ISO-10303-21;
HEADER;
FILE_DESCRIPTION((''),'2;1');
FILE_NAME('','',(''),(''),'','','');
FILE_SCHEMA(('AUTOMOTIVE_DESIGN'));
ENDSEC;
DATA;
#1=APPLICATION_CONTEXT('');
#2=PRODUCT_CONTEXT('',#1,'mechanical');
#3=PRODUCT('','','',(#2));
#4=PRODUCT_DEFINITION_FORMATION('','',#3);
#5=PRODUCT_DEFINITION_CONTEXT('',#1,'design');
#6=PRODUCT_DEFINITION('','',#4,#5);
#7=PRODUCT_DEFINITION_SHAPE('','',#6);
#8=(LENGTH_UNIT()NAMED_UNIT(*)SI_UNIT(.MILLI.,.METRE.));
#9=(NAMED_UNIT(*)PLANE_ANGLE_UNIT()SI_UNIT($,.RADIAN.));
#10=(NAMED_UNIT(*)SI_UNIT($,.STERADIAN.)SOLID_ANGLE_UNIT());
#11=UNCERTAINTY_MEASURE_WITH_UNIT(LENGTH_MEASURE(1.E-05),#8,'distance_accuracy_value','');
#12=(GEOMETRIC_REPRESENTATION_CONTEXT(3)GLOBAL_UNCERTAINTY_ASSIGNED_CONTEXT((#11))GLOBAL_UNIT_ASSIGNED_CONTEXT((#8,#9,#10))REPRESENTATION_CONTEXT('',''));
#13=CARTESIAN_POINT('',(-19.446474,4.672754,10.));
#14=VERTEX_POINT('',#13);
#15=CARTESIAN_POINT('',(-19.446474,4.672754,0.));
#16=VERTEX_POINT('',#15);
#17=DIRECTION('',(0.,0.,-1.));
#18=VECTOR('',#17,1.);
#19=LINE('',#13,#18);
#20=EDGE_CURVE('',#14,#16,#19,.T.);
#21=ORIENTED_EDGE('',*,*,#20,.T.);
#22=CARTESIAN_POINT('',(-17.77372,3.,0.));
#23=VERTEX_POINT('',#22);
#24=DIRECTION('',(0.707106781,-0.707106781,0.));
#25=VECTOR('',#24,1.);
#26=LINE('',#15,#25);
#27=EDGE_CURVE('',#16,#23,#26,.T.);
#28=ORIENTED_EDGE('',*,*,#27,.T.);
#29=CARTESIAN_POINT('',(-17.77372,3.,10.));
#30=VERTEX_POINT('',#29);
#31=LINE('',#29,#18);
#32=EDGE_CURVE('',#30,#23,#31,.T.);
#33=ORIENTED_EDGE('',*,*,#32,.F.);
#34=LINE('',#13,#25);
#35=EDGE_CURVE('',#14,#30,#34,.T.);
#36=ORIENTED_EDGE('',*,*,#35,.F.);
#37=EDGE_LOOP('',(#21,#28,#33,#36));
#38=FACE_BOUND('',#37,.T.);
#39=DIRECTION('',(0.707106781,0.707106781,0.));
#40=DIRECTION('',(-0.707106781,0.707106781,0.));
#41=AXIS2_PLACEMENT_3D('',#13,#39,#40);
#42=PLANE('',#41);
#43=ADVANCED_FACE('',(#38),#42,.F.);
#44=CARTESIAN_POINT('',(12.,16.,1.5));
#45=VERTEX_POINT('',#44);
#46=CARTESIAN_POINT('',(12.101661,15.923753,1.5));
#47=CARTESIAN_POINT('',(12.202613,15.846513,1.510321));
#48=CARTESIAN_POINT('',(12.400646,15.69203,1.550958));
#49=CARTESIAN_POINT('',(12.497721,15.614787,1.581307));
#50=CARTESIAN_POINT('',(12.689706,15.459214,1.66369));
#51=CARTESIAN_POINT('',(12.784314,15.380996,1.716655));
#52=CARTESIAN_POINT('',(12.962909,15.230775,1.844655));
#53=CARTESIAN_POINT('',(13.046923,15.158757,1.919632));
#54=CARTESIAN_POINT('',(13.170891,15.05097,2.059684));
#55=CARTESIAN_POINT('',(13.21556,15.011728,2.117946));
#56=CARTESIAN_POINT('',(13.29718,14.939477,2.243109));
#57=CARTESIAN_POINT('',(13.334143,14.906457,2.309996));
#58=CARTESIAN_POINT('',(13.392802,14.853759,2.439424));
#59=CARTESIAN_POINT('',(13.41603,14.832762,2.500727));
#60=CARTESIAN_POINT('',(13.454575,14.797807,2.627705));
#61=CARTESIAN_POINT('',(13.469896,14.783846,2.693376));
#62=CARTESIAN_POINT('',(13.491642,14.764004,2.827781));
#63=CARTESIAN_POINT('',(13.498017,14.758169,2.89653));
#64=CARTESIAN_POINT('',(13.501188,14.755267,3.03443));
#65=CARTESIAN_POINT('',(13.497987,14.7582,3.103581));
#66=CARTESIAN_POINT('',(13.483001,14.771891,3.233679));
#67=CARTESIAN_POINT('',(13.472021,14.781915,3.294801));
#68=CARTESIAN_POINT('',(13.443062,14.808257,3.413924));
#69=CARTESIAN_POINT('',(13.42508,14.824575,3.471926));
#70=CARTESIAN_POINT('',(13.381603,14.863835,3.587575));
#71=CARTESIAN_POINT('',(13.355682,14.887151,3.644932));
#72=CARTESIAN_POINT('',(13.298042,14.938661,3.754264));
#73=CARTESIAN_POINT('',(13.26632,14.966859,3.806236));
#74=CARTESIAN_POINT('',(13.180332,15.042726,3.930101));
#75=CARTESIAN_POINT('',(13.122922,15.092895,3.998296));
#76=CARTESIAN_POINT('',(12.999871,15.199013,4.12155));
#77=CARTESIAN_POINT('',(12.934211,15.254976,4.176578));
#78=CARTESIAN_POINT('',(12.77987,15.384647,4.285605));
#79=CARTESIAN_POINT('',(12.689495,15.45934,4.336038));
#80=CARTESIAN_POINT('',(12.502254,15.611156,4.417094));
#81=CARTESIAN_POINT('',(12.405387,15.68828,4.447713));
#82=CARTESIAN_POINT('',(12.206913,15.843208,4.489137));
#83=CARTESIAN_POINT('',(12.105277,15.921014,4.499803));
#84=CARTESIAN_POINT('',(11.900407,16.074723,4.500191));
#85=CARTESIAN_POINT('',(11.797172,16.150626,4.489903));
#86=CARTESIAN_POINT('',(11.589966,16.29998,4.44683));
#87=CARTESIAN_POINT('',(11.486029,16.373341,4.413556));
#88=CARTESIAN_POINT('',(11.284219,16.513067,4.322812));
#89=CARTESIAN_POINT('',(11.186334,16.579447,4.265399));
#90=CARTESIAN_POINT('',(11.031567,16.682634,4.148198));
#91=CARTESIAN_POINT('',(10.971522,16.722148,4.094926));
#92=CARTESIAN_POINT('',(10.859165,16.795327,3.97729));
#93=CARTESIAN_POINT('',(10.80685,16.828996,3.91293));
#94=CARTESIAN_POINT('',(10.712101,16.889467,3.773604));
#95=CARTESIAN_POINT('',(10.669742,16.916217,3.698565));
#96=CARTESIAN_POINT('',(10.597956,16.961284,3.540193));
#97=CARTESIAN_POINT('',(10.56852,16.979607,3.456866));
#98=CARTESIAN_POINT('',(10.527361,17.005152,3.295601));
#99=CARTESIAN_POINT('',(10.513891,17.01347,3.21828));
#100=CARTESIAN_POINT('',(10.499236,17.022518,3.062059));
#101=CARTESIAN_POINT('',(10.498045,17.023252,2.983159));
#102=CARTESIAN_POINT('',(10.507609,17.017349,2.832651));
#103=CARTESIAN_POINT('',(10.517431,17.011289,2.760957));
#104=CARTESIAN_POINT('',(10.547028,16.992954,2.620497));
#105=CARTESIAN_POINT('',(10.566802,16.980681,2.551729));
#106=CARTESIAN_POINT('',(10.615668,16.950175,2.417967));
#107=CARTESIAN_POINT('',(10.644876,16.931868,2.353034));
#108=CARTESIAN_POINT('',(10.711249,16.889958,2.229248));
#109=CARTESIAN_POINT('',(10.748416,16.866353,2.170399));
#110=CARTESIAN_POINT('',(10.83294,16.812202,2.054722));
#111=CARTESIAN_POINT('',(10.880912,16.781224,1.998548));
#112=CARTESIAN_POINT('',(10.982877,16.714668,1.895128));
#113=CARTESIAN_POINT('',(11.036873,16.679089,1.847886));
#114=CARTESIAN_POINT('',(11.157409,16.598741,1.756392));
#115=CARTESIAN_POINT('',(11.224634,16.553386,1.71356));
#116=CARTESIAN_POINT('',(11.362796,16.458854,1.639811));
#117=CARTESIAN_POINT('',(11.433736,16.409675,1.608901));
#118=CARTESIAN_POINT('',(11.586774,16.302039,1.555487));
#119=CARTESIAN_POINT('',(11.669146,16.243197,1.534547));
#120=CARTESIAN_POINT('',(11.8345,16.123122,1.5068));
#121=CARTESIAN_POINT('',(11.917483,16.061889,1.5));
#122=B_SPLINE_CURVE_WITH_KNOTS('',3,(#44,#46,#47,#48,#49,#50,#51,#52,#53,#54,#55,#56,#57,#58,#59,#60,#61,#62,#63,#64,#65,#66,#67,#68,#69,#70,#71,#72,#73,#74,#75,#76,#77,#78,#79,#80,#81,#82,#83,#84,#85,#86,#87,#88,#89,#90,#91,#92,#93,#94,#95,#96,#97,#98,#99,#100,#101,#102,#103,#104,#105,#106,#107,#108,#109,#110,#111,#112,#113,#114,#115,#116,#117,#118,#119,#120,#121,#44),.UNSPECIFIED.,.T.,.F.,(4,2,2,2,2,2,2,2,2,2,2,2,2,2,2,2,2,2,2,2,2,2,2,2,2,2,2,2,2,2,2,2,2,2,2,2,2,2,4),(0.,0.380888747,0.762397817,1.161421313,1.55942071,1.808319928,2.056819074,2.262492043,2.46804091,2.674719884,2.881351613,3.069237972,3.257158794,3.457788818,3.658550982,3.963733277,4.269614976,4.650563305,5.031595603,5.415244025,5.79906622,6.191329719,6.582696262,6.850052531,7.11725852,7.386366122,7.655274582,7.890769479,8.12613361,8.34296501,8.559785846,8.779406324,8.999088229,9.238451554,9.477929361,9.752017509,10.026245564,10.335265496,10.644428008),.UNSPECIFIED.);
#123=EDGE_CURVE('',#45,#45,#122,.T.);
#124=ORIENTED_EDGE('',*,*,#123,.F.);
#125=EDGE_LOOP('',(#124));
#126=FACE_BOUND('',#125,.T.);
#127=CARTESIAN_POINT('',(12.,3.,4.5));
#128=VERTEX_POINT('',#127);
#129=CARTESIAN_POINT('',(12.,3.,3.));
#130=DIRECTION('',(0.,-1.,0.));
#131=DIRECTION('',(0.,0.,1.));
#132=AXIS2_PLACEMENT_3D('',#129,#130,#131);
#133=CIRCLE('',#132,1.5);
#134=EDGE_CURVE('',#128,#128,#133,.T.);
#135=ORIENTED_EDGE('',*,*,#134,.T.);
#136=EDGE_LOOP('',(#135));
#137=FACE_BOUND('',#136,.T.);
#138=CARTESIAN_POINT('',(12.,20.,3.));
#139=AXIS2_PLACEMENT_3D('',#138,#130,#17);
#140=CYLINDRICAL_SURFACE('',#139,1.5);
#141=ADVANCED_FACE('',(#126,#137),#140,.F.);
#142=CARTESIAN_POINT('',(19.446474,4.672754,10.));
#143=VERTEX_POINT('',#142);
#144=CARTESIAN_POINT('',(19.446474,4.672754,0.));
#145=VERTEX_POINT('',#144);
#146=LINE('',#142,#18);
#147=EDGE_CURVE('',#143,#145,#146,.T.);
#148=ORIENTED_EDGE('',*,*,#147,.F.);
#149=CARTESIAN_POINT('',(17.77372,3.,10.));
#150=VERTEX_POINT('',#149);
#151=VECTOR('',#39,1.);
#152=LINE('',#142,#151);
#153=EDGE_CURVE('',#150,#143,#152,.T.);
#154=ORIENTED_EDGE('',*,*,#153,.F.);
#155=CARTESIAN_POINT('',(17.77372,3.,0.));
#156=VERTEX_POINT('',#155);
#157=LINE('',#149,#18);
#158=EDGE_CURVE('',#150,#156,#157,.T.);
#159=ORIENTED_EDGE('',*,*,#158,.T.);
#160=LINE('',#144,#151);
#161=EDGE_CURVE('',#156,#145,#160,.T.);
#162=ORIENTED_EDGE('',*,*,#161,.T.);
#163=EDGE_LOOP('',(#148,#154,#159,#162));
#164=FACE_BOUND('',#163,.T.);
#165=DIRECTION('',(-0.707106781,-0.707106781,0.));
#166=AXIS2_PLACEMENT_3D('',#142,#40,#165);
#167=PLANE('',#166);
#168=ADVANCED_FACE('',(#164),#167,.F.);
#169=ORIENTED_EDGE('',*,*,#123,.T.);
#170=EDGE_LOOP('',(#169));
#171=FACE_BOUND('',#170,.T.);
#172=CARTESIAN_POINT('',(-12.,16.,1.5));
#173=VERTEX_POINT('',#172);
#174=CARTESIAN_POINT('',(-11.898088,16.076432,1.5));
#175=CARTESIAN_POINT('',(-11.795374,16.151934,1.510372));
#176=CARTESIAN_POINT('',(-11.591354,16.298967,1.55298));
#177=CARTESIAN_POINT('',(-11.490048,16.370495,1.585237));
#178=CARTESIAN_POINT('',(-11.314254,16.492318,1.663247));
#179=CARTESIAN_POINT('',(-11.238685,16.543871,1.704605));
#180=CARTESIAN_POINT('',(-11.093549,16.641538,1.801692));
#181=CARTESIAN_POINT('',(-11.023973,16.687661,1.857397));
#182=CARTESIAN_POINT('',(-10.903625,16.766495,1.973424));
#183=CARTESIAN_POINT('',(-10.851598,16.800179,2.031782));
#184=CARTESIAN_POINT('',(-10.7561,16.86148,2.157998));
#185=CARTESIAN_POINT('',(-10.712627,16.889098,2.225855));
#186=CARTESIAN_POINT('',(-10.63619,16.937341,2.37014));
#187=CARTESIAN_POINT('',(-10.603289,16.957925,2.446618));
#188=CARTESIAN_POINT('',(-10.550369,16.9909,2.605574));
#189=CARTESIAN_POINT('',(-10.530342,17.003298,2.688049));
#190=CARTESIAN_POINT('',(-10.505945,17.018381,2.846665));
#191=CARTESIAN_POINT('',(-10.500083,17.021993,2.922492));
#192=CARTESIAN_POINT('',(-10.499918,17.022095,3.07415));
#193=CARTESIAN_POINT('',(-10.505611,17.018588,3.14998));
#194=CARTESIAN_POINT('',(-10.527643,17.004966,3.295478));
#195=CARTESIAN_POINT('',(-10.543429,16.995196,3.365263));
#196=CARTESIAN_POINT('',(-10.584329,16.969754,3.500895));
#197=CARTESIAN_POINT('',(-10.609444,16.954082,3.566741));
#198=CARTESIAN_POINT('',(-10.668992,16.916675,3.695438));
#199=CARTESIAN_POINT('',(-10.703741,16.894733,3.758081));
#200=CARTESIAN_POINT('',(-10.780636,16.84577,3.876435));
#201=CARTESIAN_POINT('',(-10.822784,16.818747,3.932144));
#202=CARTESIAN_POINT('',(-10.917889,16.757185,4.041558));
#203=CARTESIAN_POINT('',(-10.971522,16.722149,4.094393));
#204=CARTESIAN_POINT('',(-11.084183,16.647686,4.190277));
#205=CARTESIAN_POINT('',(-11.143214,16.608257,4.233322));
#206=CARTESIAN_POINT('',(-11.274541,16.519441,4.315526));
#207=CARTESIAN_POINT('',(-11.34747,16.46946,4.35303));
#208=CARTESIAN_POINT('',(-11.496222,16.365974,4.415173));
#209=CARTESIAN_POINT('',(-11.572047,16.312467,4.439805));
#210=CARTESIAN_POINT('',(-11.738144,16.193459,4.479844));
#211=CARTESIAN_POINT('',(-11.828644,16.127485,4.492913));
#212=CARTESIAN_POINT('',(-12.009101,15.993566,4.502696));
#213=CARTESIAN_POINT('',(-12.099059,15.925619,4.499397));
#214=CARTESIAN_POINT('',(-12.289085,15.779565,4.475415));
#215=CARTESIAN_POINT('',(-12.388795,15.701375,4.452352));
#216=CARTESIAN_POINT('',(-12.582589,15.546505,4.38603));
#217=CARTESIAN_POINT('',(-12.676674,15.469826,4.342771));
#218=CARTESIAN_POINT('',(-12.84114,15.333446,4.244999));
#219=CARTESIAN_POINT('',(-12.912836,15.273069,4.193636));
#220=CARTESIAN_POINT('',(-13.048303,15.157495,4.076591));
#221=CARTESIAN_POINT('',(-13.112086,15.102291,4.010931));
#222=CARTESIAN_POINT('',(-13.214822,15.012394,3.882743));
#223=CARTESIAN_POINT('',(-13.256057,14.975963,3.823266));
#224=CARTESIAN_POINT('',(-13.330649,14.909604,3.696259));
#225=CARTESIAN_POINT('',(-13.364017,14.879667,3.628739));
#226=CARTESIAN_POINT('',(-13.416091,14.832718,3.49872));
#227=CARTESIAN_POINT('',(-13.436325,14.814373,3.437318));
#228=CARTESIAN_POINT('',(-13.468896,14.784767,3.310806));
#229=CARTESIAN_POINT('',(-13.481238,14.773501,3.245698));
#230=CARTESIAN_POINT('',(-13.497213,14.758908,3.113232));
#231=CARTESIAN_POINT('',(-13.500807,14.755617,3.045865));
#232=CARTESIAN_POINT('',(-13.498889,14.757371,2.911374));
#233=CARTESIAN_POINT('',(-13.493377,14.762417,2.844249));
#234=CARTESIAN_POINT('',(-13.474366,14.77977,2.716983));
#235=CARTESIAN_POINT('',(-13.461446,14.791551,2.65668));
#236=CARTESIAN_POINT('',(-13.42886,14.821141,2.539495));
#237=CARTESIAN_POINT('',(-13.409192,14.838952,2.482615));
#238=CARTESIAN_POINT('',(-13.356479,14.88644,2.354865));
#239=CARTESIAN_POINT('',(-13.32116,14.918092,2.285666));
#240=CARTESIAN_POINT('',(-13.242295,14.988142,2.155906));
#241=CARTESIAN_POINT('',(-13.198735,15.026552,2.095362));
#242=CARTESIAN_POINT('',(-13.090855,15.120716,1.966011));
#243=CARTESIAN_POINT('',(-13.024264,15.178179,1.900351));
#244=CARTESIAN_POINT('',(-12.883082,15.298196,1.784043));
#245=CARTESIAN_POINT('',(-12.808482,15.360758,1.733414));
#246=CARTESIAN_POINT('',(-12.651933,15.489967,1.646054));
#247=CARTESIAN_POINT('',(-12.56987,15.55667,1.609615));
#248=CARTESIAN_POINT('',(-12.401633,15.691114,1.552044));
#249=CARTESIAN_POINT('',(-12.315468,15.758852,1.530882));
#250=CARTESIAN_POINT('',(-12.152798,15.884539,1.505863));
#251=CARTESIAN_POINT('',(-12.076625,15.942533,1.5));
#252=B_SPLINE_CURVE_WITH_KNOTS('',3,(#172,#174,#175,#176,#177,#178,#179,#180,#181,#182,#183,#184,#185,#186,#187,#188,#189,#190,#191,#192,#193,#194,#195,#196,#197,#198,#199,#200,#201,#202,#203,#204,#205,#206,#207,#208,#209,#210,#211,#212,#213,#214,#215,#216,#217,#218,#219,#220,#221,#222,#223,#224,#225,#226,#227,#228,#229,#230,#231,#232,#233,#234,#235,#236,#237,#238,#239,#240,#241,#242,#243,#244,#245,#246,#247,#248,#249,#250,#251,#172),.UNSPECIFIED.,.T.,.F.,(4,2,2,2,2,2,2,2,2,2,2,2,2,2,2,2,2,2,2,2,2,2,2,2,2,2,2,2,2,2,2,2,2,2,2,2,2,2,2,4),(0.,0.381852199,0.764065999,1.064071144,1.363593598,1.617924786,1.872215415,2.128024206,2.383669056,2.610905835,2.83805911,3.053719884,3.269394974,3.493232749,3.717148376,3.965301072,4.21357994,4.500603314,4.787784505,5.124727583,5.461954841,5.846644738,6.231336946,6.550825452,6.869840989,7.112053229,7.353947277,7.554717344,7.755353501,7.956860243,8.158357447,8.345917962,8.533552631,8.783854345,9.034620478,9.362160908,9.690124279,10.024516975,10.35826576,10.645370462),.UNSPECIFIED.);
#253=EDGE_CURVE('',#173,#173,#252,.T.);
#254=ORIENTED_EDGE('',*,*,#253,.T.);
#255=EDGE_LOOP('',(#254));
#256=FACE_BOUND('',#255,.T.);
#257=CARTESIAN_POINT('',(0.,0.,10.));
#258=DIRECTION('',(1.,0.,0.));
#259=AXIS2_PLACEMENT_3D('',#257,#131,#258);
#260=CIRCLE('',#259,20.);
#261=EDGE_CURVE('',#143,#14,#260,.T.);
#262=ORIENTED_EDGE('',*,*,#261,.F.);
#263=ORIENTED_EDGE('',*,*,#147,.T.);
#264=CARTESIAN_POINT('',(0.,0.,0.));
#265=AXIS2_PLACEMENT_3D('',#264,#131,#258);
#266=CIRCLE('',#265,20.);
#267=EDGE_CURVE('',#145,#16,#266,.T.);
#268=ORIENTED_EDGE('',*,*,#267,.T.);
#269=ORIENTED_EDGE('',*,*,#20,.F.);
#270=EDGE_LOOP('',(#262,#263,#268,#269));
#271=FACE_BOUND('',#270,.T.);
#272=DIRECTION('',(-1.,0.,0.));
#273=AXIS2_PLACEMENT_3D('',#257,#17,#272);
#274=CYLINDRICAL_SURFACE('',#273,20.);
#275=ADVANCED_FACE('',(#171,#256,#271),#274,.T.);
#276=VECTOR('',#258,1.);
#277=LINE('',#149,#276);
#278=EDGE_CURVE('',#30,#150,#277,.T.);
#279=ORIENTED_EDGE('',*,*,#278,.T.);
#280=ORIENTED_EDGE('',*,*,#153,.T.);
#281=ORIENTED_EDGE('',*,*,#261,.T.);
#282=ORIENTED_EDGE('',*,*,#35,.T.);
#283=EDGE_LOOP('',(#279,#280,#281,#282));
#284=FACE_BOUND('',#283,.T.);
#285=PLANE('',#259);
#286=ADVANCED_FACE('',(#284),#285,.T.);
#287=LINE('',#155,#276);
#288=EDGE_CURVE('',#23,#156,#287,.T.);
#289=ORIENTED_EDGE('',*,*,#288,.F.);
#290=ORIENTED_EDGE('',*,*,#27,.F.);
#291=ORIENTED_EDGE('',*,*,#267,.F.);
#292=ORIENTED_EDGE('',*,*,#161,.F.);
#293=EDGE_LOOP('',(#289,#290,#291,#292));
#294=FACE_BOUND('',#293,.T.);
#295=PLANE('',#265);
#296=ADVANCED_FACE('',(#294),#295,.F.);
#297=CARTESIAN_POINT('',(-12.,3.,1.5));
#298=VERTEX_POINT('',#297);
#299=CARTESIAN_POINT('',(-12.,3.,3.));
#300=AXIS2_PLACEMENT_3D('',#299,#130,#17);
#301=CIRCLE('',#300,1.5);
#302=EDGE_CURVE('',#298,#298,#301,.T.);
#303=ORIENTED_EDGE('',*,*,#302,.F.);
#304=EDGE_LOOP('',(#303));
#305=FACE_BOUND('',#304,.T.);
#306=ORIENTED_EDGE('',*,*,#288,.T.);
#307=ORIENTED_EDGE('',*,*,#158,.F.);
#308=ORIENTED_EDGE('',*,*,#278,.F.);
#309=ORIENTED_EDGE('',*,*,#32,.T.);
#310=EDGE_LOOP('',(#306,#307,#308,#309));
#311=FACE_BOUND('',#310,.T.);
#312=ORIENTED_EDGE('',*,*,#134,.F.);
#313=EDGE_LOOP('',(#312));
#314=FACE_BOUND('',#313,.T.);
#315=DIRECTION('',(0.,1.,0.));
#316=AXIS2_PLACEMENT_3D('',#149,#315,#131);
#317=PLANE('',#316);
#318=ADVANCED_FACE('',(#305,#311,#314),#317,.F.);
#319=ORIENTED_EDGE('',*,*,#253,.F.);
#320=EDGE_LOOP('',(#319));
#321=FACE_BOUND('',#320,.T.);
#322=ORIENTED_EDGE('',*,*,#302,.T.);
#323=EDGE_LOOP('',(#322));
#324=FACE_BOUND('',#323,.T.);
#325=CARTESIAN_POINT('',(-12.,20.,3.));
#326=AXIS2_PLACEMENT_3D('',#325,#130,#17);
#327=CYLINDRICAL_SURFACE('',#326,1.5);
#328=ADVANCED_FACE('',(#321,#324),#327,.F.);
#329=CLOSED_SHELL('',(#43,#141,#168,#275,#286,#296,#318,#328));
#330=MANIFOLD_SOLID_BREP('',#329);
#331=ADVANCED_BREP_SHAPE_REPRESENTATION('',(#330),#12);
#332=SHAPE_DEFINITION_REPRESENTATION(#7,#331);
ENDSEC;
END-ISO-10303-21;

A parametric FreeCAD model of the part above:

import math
import FreeCAD as App
import Part
import Sketcher
from FreeCAD import Vector

doc = App.newDocument("Part")
body = doc.addObject("PartDesign::Body", "Body")

# Sketch on XY plane
sketch1 = body.newObject("Sketcher::SketchObject", "Sketch")
sketch1.AttachmentSupport = (doc.getObject("XY_Plane"), [""])
sketch1.MapMode = "FlatFace"
sketch1.addGeometry([
    Part.LineSegment(Vector(-17.8, 3, 0), Vector(17.8, 3, 0)),
    Part.LineSegment(Vector(17.8, 3, 0), Vector(19.4, 4.7, 0)),
    Part.ArcOfCircle(Part.Circle(Vector(0, 0, 0), Vector(0, 0, 1), 20), math.radians(14), math.radians(166)),
    Part.LineSegment(Vector(-19.4, 4.7, 0), Vector(-17.8, 3, 0)),
], False)
sketch1.addConstraint([
    Sketcher.Constraint("Coincident", 0, 2, 1, 1),
    Sketcher.Constraint("Coincident", 1, 2, 2, 1),
    Sketcher.Constraint("Coincident", 2, 2, 3, 1),
    Sketcher.Constraint("Coincident", 3, 2, 0, 1),
    Sketcher.Constraint("Horizontal", 0),
    Sketcher.Constraint("Coincident", 2, 3, -1, 1),
    Sketcher.Constraint("Perpendicular", 1, 3),
    Sketcher.Constraint("Horizontal", 1, 2, 2, 2),
    Sketcher.Constraint("Equal", 1, 3),
    Sketcher.Constraint("Radius", 2, 20.0),
    Sketcher.Constraint("DistanceY", -1, 1, 0, 2, 3.0),
    Sketcher.Constraint("DistanceX", 0, 1, 0, 2, 35.54744),
])
pad1 = body.newObject("PartDesign::Pad", "Pad")
pad1.Profile = sketch1
pad1.Length = 10

# Sketch on XZ plane
sketch2 = body.newObject("Sketcher::SketchObject", "Sketch001")
sketch2.AttachmentSupport = (doc.getObject("XZ_Plane"), [""])
sketch2.MapMode = "FlatFace"
sketch2.AttachmentOffset = App.Placement(Vector(0, 0, -3), App.Rotation())
sketch2.addGeometry([
    Part.Circle(Vector(-12, 3, 0), Vector(0, 0, 1), 1.5),
    Part.Circle(Vector(12, 3, 0), Vector(0, 0, 1), 1.5),
], False)
sketch2.addConstraint([
    Sketcher.Constraint("Equal", 0, 1),
    Sketcher.Constraint("Symmetric", 0, 3, 1, 3, -2),
    Sketcher.Constraint("Diameter", 0, 3.0),
    Sketcher.Constraint("DistanceX", 0, 3, -1, 1, 12.0),
    Sketcher.Constraint("DistanceY", -1, 1, 0, 3, 3.0),
])
pocket1 = body.newObject("PartDesign::Pocket", "Pocket")
pocket1.Profile = sketch2
pocket1.Type = "ThroughAll"

doc.recompute()
